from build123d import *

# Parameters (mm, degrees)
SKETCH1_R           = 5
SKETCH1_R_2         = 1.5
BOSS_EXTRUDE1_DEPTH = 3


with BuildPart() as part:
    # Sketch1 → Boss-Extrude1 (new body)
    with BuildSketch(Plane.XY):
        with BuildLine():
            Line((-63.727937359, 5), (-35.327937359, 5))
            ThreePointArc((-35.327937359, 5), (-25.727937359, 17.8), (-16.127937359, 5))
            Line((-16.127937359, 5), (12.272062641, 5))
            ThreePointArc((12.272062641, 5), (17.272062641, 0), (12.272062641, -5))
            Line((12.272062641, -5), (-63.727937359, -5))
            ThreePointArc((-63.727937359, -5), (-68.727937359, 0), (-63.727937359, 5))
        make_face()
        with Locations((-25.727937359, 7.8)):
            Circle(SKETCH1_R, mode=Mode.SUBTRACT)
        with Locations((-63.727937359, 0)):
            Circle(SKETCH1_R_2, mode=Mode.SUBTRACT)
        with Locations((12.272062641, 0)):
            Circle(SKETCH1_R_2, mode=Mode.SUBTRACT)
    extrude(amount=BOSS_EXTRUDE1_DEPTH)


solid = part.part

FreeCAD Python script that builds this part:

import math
import FreeCAD as App
import Part
import Sketcher
from FreeCAD import Vector

doc = App.newDocument("Part")
params = doc.addObject("Spreadsheet::Sheet", "Params")
for row, (alias, value) in enumerate([
    ("sketch1_diameter", "3 mm"),
    ("sketch1_diameter2", "10 mm"),
    ("sketch1_radius", "10 mm"),
    ("sketch1_width", "76 mm"),
    ("sketch1_width2", "28.4 mm"),
    ("pad1_length", "3 mm"),
], start=1):
    params.set(f"A{row}", alias)
    params.set(f"B{row}", "=" + value)
    params.setAlias(f"B{row}", alias)

body = doc.addObject("PartDesign::Body", "Body")

# Sketch on XY plane
sketch1 = doc.addObject("Sketcher::SketchObject", "Sketch")
body.addObject(sketch1)
sketch1.AttachmentSupport = (doc.XY_Plane, [""])
sketch1.MapMode = "FlatFace"
sketch1.addGeometry(Part.LineSegment(Vector(-35.3, 5, 0), Vector(-63.7, 5, 0)), False)
sketch1.addGeometry(Part.ArcOfCircle(Part.Circle(Vector(-63.7, 0, 0), Vector(0, 0, 1), 5), math.radians(90), math.radians(270)), False)
sketch1.addGeometry(Part.LineSegment(Vector(-63.7, -5, 0), Vector(12.3, -5, 0)), False)
sketch1.addGeometry(Part.ArcOfCircle(Part.Circle(Vector(12.3, 0, 0), Vector(0, 0, 1), 5), math.radians(-90), math.radians(90)), False)
sketch1.addGeometry(Part.LineSegment(Vector(12.3, 5, 0), Vector(-16.1, 5, 0)), False)
sketch1.addGeometry(Part.ArcOfCircle(Part.Circle(Vector(-25.7, 7.8, 0), Vector(0, 0, 1), 10), math.radians(-16), math.radians(196)), False)
sketch1.addGeometry(Part.Circle(Vector(12.3, 0, 0), Vector(0, 0, 1), 1.5), False)
sketch1.addGeometry(Part.Circle(Vector(-63.7, 0, 0), Vector(0, 0, 1), 1.5), False)
sketch1.addGeometry(Part.Circle(Vector(-25.7, 7.8, 0), Vector(0, 0, 1), 5), False)
sketch1.addConstraint(Sketcher.Constraint("Tangent", 0, 2, 1, 1))
sketch1.addConstraint(Sketcher.Constraint("Tangent", 1, 2, 2, 1))
sketch1.addConstraint(Sketcher.Constraint("Tangent", 2, 2, 3, 1))
sketch1.addConstraint(Sketcher.Constraint("Tangent", 3, 2, 4, 1))
sketch1.addConstraint(Sketcher.Constraint("Coincident", 4, 2, 5, 1))
sketch1.addConstraint(Sketcher.Constraint("Coincident", 5, 2, 0, 1))
sketch1.addConstraint(Sketcher.Constraint("Horizontal", 0))
sketch1.addConstraint(Sketcher.Constraint("Horizontal", 2))
sketch1.addConstraint(Sketcher.Constraint("Horizontal", 4))
sketch1.addConstraint(Sketcher.Constraint("Coincident", 6, 3, 3, 3))
sketch1.addConstraint(Sketcher.Constraint("Coincident", 7, 3, 1, 3))
sketch1.addConstraint(Sketcher.Constraint("Coincident", 8, 3, 5, 3))
sketch1.addConstraint(Sketcher.Constraint("Equal", 1, 3))
sketch1.addConstraint(Sketcher.Constraint("Equal", 6, 7))
sketch1.addConstraint(Sketcher.Constraint("Equal", 3, 8))
sketch1.addConstraint(Sketcher.Constraint("PointOnObject", 1, 3, -1))
sketch1.addConstraint(Sketcher.Constraint("Equal", 0, 4))
sketch1.addConstraint(Sketcher.Constraint("Diameter", 6, 3.0))
sketch1.addConstraint(Sketcher.Constraint("Diameter", 8, 10.0))
sketch1.addConstraint(Sketcher.Constraint("Radius", 5, 10.0))
sketch1.addConstraint(Sketcher.Constraint("DistanceX", 2, 1, 2, 2, 76.0))
sketch1.addConstraint(Sketcher.Constraint("DistanceX", 0, 2, 0, 1, 28.4))
sketch1.addConstraint(Sketcher.Constraint("DistanceX", 1, 3, -1, 1, 63.727937))
sketch1.setExpression("Constraints[17]", "Params.sketch1_diameter")
sketch1.setExpression("Constraints[18]", "Params.sketch1_diameter2")
sketch1.setExpression("Constraints[19]", "Params.sketch1_radius")
sketch1.setExpression("Constraints[20]", "Params.sketch1_width")
sketch1.setExpression("Constraints[21]", "Params.sketch1_width2")
pad1 = doc.addObject("PartDesign::Pad", "Pad")
body.addObject(pad1)
pad1.Profile = sketch1
pad1.setExpression("Length", "Params.pad1_length")

doc.recompute()
